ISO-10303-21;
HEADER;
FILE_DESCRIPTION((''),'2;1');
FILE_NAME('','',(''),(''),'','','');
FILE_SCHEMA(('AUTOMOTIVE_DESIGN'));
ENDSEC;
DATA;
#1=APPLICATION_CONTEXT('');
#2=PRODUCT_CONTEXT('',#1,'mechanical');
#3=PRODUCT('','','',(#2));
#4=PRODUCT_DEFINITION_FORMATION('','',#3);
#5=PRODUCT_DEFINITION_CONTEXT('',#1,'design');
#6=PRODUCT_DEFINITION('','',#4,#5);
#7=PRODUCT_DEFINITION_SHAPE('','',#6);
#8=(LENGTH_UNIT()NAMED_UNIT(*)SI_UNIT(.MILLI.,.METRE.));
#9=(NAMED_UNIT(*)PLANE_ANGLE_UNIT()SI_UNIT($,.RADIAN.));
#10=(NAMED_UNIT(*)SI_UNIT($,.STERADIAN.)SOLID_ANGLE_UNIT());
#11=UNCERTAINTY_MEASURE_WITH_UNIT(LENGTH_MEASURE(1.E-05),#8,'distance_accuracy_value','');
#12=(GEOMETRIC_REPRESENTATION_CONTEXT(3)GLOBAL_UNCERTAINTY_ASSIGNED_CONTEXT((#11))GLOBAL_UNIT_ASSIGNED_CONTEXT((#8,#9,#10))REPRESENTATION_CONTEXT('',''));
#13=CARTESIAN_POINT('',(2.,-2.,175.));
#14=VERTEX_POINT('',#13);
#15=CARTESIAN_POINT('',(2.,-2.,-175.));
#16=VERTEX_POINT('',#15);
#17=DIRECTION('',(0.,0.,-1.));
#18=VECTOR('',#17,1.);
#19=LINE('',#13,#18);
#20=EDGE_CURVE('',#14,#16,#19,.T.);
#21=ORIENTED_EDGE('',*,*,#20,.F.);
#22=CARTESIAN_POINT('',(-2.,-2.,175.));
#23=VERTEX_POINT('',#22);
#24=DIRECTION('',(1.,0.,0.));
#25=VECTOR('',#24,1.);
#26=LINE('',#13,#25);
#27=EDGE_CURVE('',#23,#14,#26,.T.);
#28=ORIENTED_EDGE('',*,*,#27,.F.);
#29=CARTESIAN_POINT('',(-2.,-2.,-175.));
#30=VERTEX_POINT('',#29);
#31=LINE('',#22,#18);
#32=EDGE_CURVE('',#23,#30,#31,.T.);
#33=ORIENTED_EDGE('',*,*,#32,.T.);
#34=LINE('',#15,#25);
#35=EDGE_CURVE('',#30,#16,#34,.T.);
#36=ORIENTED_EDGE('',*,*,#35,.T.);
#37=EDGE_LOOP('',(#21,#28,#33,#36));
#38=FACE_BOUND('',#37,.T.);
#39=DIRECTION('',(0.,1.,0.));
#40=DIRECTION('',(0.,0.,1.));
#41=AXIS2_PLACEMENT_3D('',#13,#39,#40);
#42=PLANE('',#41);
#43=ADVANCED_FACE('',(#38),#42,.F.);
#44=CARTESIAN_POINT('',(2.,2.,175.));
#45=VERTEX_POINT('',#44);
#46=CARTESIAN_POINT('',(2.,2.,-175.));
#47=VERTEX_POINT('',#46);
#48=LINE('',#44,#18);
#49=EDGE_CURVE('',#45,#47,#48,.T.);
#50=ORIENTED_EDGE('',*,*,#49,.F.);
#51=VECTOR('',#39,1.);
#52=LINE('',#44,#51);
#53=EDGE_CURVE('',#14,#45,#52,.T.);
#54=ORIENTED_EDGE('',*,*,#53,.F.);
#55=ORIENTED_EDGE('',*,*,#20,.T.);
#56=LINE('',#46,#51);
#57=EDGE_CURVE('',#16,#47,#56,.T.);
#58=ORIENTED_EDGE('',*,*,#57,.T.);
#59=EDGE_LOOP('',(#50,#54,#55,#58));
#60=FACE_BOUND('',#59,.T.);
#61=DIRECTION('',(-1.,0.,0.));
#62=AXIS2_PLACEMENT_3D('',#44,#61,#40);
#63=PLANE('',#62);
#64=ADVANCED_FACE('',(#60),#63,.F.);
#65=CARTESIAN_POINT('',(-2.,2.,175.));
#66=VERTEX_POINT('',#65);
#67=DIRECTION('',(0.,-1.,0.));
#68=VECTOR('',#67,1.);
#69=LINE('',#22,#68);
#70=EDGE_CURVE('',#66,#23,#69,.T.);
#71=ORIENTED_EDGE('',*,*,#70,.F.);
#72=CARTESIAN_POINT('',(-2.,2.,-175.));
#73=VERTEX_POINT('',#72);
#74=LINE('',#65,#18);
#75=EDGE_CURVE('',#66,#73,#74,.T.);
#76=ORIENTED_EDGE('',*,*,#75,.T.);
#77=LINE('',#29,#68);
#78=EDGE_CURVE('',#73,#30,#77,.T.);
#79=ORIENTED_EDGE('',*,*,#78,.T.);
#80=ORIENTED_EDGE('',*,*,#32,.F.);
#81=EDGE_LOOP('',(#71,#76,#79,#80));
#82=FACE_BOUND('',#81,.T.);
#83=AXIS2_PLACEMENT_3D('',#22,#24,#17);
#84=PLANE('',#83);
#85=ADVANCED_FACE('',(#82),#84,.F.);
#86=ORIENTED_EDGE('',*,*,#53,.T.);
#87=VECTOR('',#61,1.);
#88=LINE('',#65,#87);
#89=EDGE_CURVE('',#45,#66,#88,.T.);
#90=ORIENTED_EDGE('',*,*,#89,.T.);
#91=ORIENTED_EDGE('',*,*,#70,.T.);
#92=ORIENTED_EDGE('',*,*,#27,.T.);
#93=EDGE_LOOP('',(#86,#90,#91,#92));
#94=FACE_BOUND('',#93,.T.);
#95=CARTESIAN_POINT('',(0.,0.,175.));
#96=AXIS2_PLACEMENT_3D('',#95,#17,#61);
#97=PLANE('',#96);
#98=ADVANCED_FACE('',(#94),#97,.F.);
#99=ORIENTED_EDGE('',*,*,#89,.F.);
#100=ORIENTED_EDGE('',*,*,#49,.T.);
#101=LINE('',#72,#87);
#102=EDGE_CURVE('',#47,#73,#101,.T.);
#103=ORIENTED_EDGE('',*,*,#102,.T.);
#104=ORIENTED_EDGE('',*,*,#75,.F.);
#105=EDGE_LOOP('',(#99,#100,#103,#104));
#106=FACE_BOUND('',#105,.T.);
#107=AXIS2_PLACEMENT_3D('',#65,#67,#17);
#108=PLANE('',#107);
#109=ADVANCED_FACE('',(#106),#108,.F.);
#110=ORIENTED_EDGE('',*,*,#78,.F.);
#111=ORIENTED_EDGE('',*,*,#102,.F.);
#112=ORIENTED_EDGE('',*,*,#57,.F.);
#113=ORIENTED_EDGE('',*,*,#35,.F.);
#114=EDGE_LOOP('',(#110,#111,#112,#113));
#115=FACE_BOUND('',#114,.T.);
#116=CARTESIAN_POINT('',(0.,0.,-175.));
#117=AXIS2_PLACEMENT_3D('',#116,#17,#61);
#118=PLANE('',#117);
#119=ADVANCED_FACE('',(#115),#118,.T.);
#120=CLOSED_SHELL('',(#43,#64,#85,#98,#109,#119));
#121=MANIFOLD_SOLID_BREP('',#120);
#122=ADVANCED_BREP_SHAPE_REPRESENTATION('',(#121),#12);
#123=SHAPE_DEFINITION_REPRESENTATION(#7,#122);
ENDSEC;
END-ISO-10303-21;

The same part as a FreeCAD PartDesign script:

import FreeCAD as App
import Part
import Sketcher
from FreeCAD import Vector
Q = App.Units.Quantity

doc = App.newDocument("Part")
params = doc.addObject("Spreadsheet::Sheet", "Params")
for row, (alias, value) in enumerate([
    ("sketch1_width", "4 mm"),
    ("pad1_length", "175 mm"),
    ("pad1_length2", "175 mm"),
], start=1):
    params.set(f"A{row}", alias)
    params.set(f"B{row}", "=" + value)
    params.setAlias(f"B{row}", alias)

body = doc.addObject("PartDesign::Body", "Body")

# Sketch on XY plane
sketch1 = body.newObject("Sketcher::SketchObject", "Sketch")
sketch1.AttachmentSupport = (doc.getObject("XY_Plane"), [""])
sketch1.MapMode = "FlatFace"
sketch1.addGeometry([
    Part.LineSegment(Vector(-2, 2, 0), Vector(-2, -2, 0)),
    Part.LineSegment(Vector(-2, -2, 0), Vector(2, -2, 0)),
    Part.LineSegment(Vector(2, -2, 0), Vector(2, 2, 0)),
    Part.LineSegment(Vector(2, 2, 0), Vector(-2, 2, 0)),
], False)
sketch1.addConstraint([
    Sketcher.Constraint("Coincident", 0, 2, 1, 1),
    Sketcher.Constraint("Coincident", 1, 2, 2, 1),
    Sketcher.Constraint("Coincident", 2, 2, 3, 1),
    Sketcher.Constraint("Coincident", 3, 2, 0, 1),
    Sketcher.Constraint("Vertical", 0),
    Sketcher.Constraint("Horizontal", 1),
    Sketcher.Constraint("Vertical", 2),
    Sketcher.Constraint("Horizontal", 3),
    Sketcher.Constraint("Symmetric", 0, 2, 2, 2, -1, 1),
    Sketcher.Constraint("Equal", 3, 0),
    Sketcher.Constraint("DistanceX", 1, 1, 1, 2, Q("4 mm")),
])
sketch1.setExpression("Constraints[10]", "Params.sketch1_width")
pad1 = body.newObject("PartDesign::Pad", "Pad")
pad1.Profile = sketch1
pad1.Type = "TwoLengths"
pad1.setExpression("Length", "Params.pad1_length")
pad1.setExpression("Length2", "Params.pad1_length2")

doc.recompute()
